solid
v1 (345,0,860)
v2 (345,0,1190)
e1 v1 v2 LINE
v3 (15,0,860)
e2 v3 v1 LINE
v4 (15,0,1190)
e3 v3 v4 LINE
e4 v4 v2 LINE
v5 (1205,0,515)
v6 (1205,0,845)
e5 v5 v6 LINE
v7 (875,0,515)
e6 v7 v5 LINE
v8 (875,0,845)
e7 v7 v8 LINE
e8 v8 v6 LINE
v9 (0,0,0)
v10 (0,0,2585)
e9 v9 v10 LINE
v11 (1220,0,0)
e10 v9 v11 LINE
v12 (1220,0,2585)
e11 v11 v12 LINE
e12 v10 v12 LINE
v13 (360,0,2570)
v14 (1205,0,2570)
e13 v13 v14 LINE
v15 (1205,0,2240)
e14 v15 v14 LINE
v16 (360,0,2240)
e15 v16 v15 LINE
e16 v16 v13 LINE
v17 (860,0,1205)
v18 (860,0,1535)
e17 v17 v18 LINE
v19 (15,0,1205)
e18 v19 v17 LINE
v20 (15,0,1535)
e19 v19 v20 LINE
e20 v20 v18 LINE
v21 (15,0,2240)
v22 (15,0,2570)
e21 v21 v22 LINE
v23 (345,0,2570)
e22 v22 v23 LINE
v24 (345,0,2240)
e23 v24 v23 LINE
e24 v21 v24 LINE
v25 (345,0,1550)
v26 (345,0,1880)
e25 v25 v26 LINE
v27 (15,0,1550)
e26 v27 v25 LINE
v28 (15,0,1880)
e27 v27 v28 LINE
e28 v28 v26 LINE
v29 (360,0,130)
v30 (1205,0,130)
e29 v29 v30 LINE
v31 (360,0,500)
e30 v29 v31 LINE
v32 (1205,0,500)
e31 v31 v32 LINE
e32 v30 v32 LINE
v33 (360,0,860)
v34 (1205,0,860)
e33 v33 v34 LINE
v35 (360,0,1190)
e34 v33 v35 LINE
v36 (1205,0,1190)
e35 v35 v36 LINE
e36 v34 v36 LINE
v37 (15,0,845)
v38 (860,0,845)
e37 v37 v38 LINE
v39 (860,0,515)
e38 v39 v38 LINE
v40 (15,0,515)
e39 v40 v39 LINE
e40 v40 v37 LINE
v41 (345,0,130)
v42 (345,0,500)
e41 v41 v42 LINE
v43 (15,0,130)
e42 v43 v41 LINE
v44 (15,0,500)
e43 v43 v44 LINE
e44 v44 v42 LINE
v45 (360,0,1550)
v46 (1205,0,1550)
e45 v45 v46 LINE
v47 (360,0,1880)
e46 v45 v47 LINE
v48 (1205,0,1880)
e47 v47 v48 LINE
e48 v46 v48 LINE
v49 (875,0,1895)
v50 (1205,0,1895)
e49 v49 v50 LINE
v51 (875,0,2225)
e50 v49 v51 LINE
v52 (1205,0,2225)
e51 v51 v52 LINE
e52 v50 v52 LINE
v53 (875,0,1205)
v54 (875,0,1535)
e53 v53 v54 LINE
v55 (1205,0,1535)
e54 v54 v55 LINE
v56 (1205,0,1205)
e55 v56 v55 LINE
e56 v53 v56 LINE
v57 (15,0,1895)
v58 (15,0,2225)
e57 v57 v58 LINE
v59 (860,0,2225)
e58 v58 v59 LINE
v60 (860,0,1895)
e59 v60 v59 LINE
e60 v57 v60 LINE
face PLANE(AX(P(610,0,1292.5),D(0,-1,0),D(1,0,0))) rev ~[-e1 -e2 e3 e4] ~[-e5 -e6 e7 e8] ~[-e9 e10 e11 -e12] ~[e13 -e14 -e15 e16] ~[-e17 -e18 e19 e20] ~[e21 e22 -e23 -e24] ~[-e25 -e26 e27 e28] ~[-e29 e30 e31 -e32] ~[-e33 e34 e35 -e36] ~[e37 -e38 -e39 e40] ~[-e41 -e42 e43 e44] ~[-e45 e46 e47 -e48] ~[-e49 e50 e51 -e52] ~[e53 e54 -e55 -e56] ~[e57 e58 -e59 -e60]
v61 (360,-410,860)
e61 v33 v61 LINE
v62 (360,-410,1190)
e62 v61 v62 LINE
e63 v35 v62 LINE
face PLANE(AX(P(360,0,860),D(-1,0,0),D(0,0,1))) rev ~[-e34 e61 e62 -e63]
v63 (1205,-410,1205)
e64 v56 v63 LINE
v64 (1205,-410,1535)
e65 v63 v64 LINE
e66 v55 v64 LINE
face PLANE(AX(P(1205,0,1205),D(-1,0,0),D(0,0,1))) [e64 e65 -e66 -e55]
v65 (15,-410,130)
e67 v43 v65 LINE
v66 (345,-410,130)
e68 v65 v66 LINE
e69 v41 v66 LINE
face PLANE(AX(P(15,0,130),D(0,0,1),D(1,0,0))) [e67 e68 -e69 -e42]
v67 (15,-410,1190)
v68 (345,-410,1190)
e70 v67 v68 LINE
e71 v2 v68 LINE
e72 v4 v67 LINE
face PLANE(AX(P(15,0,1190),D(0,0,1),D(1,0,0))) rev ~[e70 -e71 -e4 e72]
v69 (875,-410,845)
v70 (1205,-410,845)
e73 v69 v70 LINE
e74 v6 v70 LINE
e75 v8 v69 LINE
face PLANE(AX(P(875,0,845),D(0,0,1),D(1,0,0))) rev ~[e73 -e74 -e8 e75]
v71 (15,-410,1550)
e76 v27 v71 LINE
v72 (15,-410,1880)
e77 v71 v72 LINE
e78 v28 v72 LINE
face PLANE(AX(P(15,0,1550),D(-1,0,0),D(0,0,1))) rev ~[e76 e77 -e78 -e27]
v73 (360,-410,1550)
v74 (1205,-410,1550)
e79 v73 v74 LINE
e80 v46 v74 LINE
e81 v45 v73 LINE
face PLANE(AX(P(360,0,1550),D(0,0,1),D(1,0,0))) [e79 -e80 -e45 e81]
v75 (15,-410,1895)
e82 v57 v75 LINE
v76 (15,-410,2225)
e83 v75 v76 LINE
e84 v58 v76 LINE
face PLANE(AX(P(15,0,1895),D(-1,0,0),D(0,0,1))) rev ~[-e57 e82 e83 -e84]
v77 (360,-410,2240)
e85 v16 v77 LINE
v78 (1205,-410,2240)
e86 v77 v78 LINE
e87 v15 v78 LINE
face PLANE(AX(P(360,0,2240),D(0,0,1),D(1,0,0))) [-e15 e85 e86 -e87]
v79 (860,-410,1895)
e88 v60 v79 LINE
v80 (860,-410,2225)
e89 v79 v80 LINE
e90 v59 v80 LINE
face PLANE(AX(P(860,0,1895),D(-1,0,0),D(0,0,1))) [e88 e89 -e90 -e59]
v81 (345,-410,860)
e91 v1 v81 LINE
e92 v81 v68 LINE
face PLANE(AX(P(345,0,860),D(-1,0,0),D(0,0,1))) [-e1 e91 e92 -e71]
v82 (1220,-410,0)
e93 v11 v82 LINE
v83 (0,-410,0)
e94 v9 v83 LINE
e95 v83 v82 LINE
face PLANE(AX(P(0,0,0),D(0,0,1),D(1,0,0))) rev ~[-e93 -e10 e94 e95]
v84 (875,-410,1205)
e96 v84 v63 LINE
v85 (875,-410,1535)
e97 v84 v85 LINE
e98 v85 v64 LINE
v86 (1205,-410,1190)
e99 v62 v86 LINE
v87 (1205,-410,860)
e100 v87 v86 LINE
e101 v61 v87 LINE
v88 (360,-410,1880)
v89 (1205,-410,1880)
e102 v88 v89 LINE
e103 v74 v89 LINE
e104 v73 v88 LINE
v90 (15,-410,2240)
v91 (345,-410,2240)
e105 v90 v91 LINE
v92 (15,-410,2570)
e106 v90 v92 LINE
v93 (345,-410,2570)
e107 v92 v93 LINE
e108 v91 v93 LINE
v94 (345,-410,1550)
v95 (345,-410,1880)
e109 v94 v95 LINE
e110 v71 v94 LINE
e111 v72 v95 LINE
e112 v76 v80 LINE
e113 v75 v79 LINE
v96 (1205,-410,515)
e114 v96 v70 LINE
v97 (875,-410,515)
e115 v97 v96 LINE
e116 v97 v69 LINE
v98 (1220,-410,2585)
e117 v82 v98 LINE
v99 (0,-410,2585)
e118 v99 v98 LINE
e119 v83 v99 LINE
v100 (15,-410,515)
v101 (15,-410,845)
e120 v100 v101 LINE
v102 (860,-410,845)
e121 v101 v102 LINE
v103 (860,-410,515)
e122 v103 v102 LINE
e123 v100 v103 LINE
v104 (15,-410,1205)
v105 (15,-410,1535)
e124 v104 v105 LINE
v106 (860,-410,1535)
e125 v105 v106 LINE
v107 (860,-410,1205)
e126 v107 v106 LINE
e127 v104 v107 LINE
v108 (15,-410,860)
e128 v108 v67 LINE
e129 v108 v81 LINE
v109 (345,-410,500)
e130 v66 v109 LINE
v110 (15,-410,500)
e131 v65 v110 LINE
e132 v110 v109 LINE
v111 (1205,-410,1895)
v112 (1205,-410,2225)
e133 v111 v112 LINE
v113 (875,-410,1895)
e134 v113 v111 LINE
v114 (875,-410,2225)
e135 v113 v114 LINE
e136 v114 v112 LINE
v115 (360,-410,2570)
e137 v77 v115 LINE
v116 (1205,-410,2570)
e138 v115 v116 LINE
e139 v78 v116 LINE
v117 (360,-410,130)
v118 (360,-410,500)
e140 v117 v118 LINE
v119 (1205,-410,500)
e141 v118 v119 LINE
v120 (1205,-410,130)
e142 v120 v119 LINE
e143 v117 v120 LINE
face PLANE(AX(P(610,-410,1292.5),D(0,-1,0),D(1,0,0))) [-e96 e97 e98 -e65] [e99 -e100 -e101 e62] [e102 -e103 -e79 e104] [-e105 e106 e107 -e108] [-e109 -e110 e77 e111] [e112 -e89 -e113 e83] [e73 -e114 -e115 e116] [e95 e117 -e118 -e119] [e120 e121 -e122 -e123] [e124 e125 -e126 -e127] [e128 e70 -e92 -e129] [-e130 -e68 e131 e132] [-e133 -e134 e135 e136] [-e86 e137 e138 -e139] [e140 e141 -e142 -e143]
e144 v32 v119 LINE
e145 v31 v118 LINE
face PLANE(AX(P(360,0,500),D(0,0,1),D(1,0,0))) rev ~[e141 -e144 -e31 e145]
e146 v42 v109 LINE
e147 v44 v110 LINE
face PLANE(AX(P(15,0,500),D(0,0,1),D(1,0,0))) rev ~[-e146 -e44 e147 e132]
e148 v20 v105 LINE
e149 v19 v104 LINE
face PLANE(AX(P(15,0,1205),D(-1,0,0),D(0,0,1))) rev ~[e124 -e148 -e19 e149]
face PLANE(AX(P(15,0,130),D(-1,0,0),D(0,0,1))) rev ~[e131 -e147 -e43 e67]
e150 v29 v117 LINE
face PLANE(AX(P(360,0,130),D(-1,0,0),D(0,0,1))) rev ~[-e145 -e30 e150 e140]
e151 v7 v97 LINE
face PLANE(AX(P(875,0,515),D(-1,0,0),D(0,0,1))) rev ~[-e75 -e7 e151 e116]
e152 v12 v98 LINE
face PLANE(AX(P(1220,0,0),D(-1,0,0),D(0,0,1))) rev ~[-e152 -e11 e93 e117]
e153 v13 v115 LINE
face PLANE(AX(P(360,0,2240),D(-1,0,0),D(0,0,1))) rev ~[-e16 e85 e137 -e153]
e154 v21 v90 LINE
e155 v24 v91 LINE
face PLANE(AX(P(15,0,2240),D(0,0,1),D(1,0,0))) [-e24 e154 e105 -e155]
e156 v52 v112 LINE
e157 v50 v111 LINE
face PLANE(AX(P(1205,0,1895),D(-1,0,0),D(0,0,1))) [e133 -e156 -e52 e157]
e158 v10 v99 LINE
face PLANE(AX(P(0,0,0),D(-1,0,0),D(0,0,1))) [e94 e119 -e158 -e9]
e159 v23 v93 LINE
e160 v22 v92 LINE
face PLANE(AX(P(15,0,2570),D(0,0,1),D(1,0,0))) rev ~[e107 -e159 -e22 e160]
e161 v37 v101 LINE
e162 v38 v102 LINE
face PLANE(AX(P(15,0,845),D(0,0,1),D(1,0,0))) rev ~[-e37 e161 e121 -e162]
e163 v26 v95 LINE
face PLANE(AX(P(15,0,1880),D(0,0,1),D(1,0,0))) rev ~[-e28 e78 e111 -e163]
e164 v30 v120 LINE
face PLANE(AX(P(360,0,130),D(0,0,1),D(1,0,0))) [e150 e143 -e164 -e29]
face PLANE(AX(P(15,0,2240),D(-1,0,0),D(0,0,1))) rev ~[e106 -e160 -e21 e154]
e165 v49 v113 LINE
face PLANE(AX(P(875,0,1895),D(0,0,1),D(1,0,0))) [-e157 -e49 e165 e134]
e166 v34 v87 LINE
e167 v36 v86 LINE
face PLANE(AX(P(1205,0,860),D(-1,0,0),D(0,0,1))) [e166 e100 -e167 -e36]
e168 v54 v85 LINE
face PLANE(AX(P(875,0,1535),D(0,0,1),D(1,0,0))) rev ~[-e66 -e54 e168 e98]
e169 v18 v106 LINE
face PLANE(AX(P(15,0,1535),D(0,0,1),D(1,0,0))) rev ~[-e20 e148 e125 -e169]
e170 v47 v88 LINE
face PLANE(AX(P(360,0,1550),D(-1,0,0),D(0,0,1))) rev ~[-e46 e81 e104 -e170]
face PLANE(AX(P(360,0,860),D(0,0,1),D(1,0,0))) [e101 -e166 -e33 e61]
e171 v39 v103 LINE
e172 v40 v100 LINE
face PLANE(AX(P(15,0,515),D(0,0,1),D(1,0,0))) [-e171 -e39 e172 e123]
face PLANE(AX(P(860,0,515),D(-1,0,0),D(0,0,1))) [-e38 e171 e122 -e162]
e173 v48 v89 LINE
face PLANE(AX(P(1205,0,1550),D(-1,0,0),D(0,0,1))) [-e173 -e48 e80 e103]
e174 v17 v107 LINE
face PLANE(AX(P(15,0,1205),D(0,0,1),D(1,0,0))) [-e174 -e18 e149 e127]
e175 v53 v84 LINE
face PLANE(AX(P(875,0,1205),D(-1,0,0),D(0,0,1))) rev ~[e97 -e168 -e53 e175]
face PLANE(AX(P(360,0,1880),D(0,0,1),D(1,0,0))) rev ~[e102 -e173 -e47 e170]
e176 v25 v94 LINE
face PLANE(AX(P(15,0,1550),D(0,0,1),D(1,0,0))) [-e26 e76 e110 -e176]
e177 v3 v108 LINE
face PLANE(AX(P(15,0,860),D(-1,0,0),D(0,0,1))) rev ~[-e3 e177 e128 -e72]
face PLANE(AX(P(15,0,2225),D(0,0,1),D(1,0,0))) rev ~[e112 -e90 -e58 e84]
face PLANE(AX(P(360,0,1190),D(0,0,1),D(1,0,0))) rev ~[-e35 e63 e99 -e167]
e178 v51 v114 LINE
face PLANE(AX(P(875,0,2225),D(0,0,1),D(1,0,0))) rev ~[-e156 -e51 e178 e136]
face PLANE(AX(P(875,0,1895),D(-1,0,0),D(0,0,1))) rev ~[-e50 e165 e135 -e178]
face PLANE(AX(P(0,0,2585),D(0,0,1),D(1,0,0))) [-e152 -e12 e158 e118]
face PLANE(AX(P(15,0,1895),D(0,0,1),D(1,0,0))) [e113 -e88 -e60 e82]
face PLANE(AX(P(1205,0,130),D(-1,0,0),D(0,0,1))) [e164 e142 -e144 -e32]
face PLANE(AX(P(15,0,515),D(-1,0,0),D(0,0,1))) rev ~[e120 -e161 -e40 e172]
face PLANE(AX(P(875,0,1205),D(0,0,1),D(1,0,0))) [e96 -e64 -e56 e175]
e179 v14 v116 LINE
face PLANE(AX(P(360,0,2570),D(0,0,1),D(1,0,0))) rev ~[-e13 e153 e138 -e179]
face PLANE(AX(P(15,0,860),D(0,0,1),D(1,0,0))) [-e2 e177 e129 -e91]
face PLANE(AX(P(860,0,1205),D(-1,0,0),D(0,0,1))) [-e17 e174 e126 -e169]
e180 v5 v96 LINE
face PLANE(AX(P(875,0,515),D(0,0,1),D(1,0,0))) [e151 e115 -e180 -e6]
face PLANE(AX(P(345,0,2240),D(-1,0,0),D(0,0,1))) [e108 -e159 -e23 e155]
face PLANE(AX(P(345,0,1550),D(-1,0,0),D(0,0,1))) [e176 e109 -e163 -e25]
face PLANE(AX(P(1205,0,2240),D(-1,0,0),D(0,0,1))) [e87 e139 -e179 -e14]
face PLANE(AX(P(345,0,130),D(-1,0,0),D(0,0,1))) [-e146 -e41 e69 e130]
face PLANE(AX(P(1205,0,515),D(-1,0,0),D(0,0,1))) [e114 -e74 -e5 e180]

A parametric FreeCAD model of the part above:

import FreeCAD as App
import Part
import Sketcher
Q = App.Units.Quantity


def add_polygon(sketch, points):
    """Adds a closed chain of lines whose ends are joined by coincident constraints."""
    first, n = sketch.GeometryCount, len(points)
    for a, b in zip(points, points[1:] + points[:1]):
        sketch.addGeometry(Part.LineSegment(App.Vector(*a, 0), App.Vector(*b, 0)), False)
    for i in range(n):
        sketch.addConstraint(Sketcher.Constraint("Coincident", first + i, 2, first + (i + 1) % n, 1))

doc = App.newDocument("Part")
body = doc.addObject("PartDesign::Body", "Body")

sketch1 = doc.addObject("Sketcher::SketchObject", "Sketch")
body.addObject(sketch1)
sketch1.AttachmentSupport = (doc.XZ_Plane, [""])
sketch1.MapMode = "FlatFace"
add_polygon(sketch1, [(0, 2585), (0, 0), (1220, 0), (1220, 2585)])
add_polygon(sketch1, [(345, 130), (15, 130), (15, 500), (345, 500)])
add_polygon(sketch1, [(860, 515), (15, 515), (15, 845), (860, 845)])
add_polygon(sketch1, [(345, 860), (15, 860), (15, 1190), (345, 1190)])
add_polygon(sketch1, [(1205, 130), (360, 130), (360, 500), (1205, 500)])
add_polygon(sketch1, [(1205, 515), (875, 515), (875, 845), (1205, 845)])
add_polygon(sketch1, [(1205, 860), (360, 860), (360, 1190), (1205, 1190)])
add_polygon(sketch1, [(345, 1550), (15, 1550), (15, 1880), (345, 1880)])
add_polygon(sketch1, [(860, 1205), (15, 1205), (15, 1535), (860, 1535)])
add_polygon(sketch1, [(345, 2240), (15, 2240), (15, 2570), (345, 2570)])
add_polygon(sketch1, [(860, 1895), (15, 1895), (15, 2225), (860, 2225)])
add_polygon(sketch1, [(1205, 1550), (360, 1550), (360, 1880), (1205, 1880)])
add_polygon(sketch1, [(1205, 1205), (875, 1205), (875, 1535), (1205, 1535)])
add_polygon(sketch1, [(1205, 2240), (360, 2240), (360, 2570), (1205, 2570)])
add_polygon(sketch1, [(1205, 1895), (875, 1895), (875, 2225), (1205, 2225)])
sketch1.addConstraint(Sketcher.Constraint("Vertical", 0))
sketch1.addConstraint(Sketcher.Constraint("Horizontal", 1))
sketch1.addConstraint(Sketcher.Constraint("Vertical", 2))
sketch1.addConstraint(Sketcher.Constraint("Horizontal", 3))
sketch1.addConstraint(Sketcher.Constraint("Horizontal", 4))
sketch1.addConstraint(Sketcher.Constraint("Vertical", 5))
sketch1.addConstraint(Sketcher.Constraint("Horizontal", 6))
sketch1.addConstraint(Sketcher.Constraint("Vertical", 7))
sketch1.addConstraint(Sketcher.Constraint("Horizontal", 8))
sketch1.addConstraint(Sketcher.Constraint("Vertical", 9))
sketch1.addConstraint(Sketcher.Constraint("Horizontal", 10))
sketch1.addConstraint(Sketcher.Constraint("Vertical", 11))
sketch1.addConstraint(Sketcher.Constraint("Horizontal", 12))
sketch1.addConstraint(Sketcher.Constraint("Vertical", 13))
sketch1.addConstraint(Sketcher.Constraint("Horizontal", 14))
sketch1.addConstraint(Sketcher.Constraint("Vertical", 15))
sketch1.addConstraint(Sketcher.Constraint("Horizontal", 16))
sketch1.addConstraint(Sketcher.Constraint("Vertical", 17))
sketch1.addConstraint(Sketcher.Constraint("Horizontal", 18))
sketch1.addConstraint(Sketcher.Constraint("Vertical", 19))
sketch1.addConstraint(Sketcher.Constraint("Horizontal", 20))
sketch1.addConstraint(Sketcher.Constraint("Vertical", 21))
sketch1.addConstraint(Sketcher.Constraint("Horizontal", 22))
sketch1.addConstraint(Sketcher.Constraint("Vertical", 23))
sketch1.addConstraint(Sketcher.Constraint("Horizontal", 24))
sketch1.addConstraint(Sketcher.Constraint("Vertical", 25))
sketch1.addConstraint(Sketcher.Constraint("Horizontal", 26))
sketch1.addConstraint(Sketcher.Constraint("Vertical", 27))
sketch1.addConstraint(Sketcher.Constraint("Horizontal", 28))
sketch1.addConstraint(Sketcher.Constraint("Vertical", 29))
sketch1.addConstraint(Sketcher.Constraint("Horizontal", 30))
sketch1.addConstraint(Sketcher.Constraint("Vertical", 31))
sketch1.addConstraint(Sketcher.Constraint("Horizontal", 32))
sketch1.addConstraint(Sketcher.Constraint("Vertical", 33))
sketch1.addConstraint(Sketcher.Constraint("Horizontal", 34))
sketch1.addConstraint(Sketcher.Constraint("Vertical", 35))
sketch1.addConstraint(Sketcher.Constraint("Horizontal", 36))
sketch1.addConstraint(Sketcher.Constraint("Vertical", 37))
sketch1.addConstraint(Sketcher.Constraint("Horizontal", 38))
sketch1.addConstraint(Sketcher.Constraint("Vertical", 39))
sketch1.addConstraint(Sketcher.Constraint("Horizontal", 40))
sketch1.addConstraint(Sketcher.Constraint("Vertical", 41))
sketch1.addConstraint(Sketcher.Constraint("Horizontal", 42))
sketch1.addConstraint(Sketcher.Constraint("Vertical", 43))
sketch1.addConstraint(Sketcher.Constraint("Horizontal", 44))
sketch1.addConstraint(Sketcher.Constraint("Vertical", 45))
sketch1.addConstraint(Sketcher.Constraint("Horizontal", 46))
sketch1.addConstraint(Sketcher.Constraint("Vertical", 47))
sketch1.addConstraint(Sketcher.Constraint("Horizontal", 48))
sketch1.addConstraint(Sketcher.Constraint("Vertical", 49))
sketch1.addConstraint(Sketcher.Constraint("Horizontal", 50))
sketch1.addConstraint(Sketcher.Constraint("Vertical", 51))
sketch1.addConstraint(Sketcher.Constraint("Horizontal", 52))
sketch1.addConstraint(Sketcher.Constraint("Vertical", 53))
sketch1.addConstraint(Sketcher.Constraint("Horizontal", 54))
sketch1.addConstraint(Sketcher.Constraint("Vertical", 55))
sketch1.addConstraint(Sketcher.Constraint("Horizontal", 56))
sketch1.addConstraint(Sketcher.Constraint("Vertical", 57))
sketch1.addConstraint(Sketcher.Constraint("Horizontal", 58))
sketch1.addConstraint(Sketcher.Constraint("Vertical", 59))
sketch1.addConstraint(Sketcher.Constraint("Coincident", 0, 2, -1, 1))
sketch1.addConstraint(Sketcher.Constraint("Horizontal", 7, 2, 16, 2))
sketch1.addConstraint(Sketcher.Constraint("Horizontal", 6, 2, 17, 2))
sketch1.addConstraint(Sketcher.Constraint("Horizontal", 11, 2, 20, 2))
sketch1.addConstraint(Sketcher.Constraint("Horizontal", 10, 2, 21, 2))
sketch1.addConstraint(Sketcher.Constraint("Horizontal", 15, 2, 24, 2))
sketch1.addConstraint(Sketcher.Constraint("Horizontal", 14, 2, 25, 2))
sketch1.addConstraint(Sketcher.Constraint("Horizontal", 31, 2, 44, 2))
sketch1.addConstraint(Sketcher.Constraint("Horizontal", 30, 2, 45, 2))
sketch1.addConstraint(Sketcher.Constraint("Horizontal", 35, 2, 48, 2))
sketch1.addConstraint(Sketcher.Constraint("Horizontal", 34, 2, 49, 2))
sketch1.addConstraint(Sketcher.Constraint("Horizontal", 39, 2, 52, 2))
sketch1.addConstraint(Sketcher.Constraint("Horizontal", 38, 2, 53, 2))
sketch1.addConstraint(Sketcher.Constraint("Horizontal", 43, 2, 56, 2))
sketch1.addConstraint(Sketcher.Constraint("Horizontal", 42, 2, 57, 2))
sketch1.addConstraint(Sketcher.Constraint("Vertical", 5, 2, 8, 2))
sketch1.addConstraint(Sketcher.Constraint("Vertical", 9, 2, 12, 2))
sketch1.addConstraint(Sketcher.Constraint("Vertical", 7, 2, 14, 2))
sketch1.addConstraint(Sketcher.Constraint("Vertical", 19, 2, 22, 2))
sketch1.addConstraint(Sketcher.Constraint("Vertical", 17, 2, 24, 2))
sketch1.addConstraint(Sketcher.Constraint("Vertical", 23, 2, 26, 2))
sketch1.addConstraint(Sketcher.Constraint("Vertical", 13, 2, 28, 2))
sketch1.addConstraint(Sketcher.Constraint("Vertical", 15, 2, 30, 2))
sketch1.addConstraint(Sketcher.Constraint("Vertical", 29, 2, 32, 2))
sketch1.addConstraint(Sketcher.Constraint("Vertical", 11, 2, 34, 2))
sketch1.addConstraint(Sketcher.Constraint("Vertical", 33, 2, 36, 2))
sketch1.addConstraint(Sketcher.Constraint("Vertical", 31, 2, 38, 2))
sketch1.addConstraint(Sketcher.Constraint("Vertical", 37, 2, 40, 2))
sketch1.addConstraint(Sketcher.Constraint("Vertical", 35, 2, 42, 2))
sketch1.addConstraint(Sketcher.Constraint("Vertical", 25, 2, 44, 2))
sketch1.addConstraint(Sketcher.Constraint("Vertical", 27, 2, 46, 2))
sketch1.addConstraint(Sketcher.Constraint("Vertical", 21, 2, 48, 2))
sketch1.addConstraint(Sketcher.Constraint("Vertical", 47, 2, 50, 2))
sketch1.addConstraint(Sketcher.Constraint("Vertical", 45, 2, 52, 2))
sketch1.addConstraint(Sketcher.Constraint("Vertical", 51, 2, 54, 2))
sketch1.addConstraint(Sketcher.Constraint("Vertical", 49, 2, 56, 2))
sketch1.addConstraint(Sketcher.Constraint("Vertical", 55, 2, 58, 2))
sketch1.addConstraint(Sketcher.Constraint("Equal", 10, 16))
sketch1.addConstraint(Sketcher.Constraint("Equal", 14, 20))
sketch1.addConstraint(Sketcher.Constraint("Equal", 58, 9))
sketch1.addConstraint(Sketcher.Constraint("Equal", 11, 13))
sketch1.addConstraint(Sketcher.Constraint("Equal", 27, 29))
sketch1.addConstraint(Sketcher.Constraint("Equal", 31, 33))
sketch1.addConstraint(Sketcher.Constraint("Equal", 35, 37))
sketch1.addConstraint(Sketcher.Constraint("Equal", 39, 41))
sketch1.addConstraint(Sketcher.Constraint("DistanceX", 1, 1, 1, 2, Q("1220 mm")))
sketch1.addConstraint(Sketcher.Constraint("DistanceX", 4, 2, 4, 1, Q("330 mm")))
sketch1.addConstraint(Sketcher.Constraint("DistanceX", 8, 2, 8, 1, Q("845 mm")))
sketch1.addConstraint(Sketcher.Constraint("DistanceY", 0, 2, 0, 1, Q("2585 mm")))
sketch1.addConstraint(Sketcher.Constraint("DistanceY", 5, 1, 5, 2, Q("370 mm")))
sketch1.addConstraint(Sketcher.Constraint("DistanceX", -1, 1, 4, 2, Q("15 mm")))
sketch1.addConstraint(Sketcher.Constraint("DistanceY", -1, 1, 4, 2, Q("130 mm")))
sketch1.addConstraint(Sketcher.Constraint("DistanceY", -1, 1, 8, 2, Q("515 mm")))
sketch1.addConstraint(Sketcher.Constraint("DistanceY", -1, 1, 12, 2, Q("860 mm")))
sketch1.addConstraint(Sketcher.Constraint("DistanceX", -1, 1, 16, 2, Q("360 mm")))
sketch1.addConstraint(Sketcher.Constraint("DistanceY", -1, 1, 28, 2, Q("1550 mm")))
sketch1.addConstraint(Sketcher.Constraint("DistanceY", -1, 1, 32, 2, Q("1205 mm")))
sketch1.addConstraint(Sketcher.Constraint("DistanceY", -1, 1, 36, 2, Q("2240 mm")))
sketch1.addConstraint(Sketcher.Constraint("DistanceY", -1, 1, 40, 2, Q("1895 mm")))
pad1 = doc.addObject("PartDesign::Pad", "Pad")
body.addObject(pad1)
pad1.Profile = sketch1
pad1.Length = 410

doc.recompute()
